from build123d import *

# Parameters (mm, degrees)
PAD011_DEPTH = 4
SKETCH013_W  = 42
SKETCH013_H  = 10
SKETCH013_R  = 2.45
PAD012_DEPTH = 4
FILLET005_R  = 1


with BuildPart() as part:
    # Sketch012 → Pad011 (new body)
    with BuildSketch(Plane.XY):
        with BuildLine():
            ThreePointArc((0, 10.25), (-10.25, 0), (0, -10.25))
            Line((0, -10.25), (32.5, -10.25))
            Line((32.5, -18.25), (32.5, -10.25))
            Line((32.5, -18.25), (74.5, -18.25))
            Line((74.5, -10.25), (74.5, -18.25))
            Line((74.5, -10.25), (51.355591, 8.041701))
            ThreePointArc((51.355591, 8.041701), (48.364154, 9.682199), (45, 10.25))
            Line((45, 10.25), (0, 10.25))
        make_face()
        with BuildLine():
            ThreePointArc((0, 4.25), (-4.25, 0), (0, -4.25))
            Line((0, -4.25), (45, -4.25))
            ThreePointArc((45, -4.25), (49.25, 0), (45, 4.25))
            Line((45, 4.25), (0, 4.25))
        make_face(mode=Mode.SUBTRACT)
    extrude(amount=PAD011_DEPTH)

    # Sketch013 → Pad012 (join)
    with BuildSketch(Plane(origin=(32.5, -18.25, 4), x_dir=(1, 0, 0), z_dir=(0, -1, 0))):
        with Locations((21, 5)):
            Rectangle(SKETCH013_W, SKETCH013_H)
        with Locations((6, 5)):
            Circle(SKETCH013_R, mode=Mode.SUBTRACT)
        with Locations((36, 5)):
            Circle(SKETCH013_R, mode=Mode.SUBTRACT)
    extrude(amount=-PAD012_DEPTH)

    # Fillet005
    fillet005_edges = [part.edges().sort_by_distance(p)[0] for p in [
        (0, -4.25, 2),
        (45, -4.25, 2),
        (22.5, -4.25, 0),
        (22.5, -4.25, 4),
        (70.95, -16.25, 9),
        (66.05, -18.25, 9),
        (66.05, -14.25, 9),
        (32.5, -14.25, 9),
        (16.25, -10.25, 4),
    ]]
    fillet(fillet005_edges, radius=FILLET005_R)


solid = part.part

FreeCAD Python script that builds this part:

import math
import FreeCAD as App
import Part
import Sketcher

V = App.Vector


def edges_at(feature, points):
    """Names of the edges that pass closest to the given points."""
    edges = feature.Shape.Edges
    near = lambda p: min(range(len(edges)), key=lambda i: edges[i].distToShape(Part.Vertex(*p))[0])
    return sorted({f"Edge{near(p) + 1}" for p in points})


def add_polygon(sketch, points):
    """Adds a closed chain of lines whose ends are joined by coincident constraints."""
    first, n = sketch.GeometryCount, len(points)
    for a, b in zip(points, points[1:] + points[:1]):
        sketch.addGeometry(Part.LineSegment(App.Vector(*a, 0), App.Vector(*b, 0)), False)
    for i in range(n):
        sketch.addConstraint(Sketcher.Constraint("Coincident", first + i, 2, first + (i + 1) % n, 1))

doc = App.newDocument("Part")
body = doc.addObject("PartDesign::Body", "Body")

sketch1 = body.newObject("Sketcher::SketchObject", "Sketch")
sketch1.AttachmentSupport = (doc.getObject("XY_Plane"), [""])
sketch1.MapMode = "FlatFace"
sketch1.addGeometry([
    Part.ArcOfCircle(Part.Circle(V(0, 0, 0), V(0, 0, 1), 10.2), math.radians(90), math.radians(270)),
    Part.LineSegment(V(0, -10.2, 0), V(32.5, -10.2, 0)),
    Part.LineSegment(V(32.5, -10.2, 0), V(32.5, -18.2, 0)),
    Part.LineSegment(V(32.5, -18.2, 0), V(74.5, -18.2, 0)),
    Part.LineSegment(V(74.5, -18.2, 0), V(74.5, -10.2, 0)),
    Part.LineSegment(V(74.5, -10.2, 0), V(51.4, 8, 0)),
    Part.ArcOfCircle(Part.Circle(V(45, 0, 0), V(0, 0, 1), 10.2), math.radians(52), math.radians(90)),
    Part.LineSegment(V(45, 10.2, 0), V(0, 10.2, 0)),
    Part.ArcOfCircle(Part.Circle(V(0, 0, 0), V(0, 0, 1), 4.2), math.radians(90), math.radians(270)),
    Part.LineSegment(V(0, 4.2, 0), V(45, 4.2, 0)),
    Part.ArcOfCircle(Part.Circle(V(45, 0, 0), V(0, 0, 1), 4.2), math.radians(-90), math.radians(90)),
    Part.LineSegment(V(45, -4.2, 0), V(0, -4.2, 0)),
], False)
sketch1.addConstraint([
    Sketcher.Constraint("Tangent", 0, 2, 1, 1),
    Sketcher.Constraint("Coincident", 1, 2, 2, 1),
    Sketcher.Constraint("Coincident", 2, 2, 3, 1),
    Sketcher.Constraint("Coincident", 3, 2, 4, 1),
    Sketcher.Constraint("Coincident", 4, 2, 5, 1),
    Sketcher.Constraint("Tangent", 5, 2, 6, 1),
    Sketcher.Constraint("Tangent", 6, 2, 7, 1),
    Sketcher.Constraint("Tangent", 7, 2, 0, 1),
    Sketcher.Constraint("Tangent", 8, 1, 9, 1),
    Sketcher.Constraint("Tangent", 9, 2, 10, 2),
    Sketcher.Constraint("Tangent", 10, 1, 11, 1),
    Sketcher.Constraint("Tangent", 11, 2, 8, 2),
    Sketcher.Constraint("Horizontal", 1),
    Sketcher.Constraint("Vertical", 2),
    Sketcher.Constraint("Horizontal", 3),
    Sketcher.Constraint("Vertical", 4),
    Sketcher.Constraint("Horizontal", 7),
    Sketcher.Constraint("Horizontal", 9),
    Sketcher.Constraint("Horizontal", 11),
    Sketcher.Constraint("Coincident", 0, 3, -1, 1),
    Sketcher.Constraint("Coincident", 8, 3, -1, 1),
    Sketcher.Constraint("Horizontal", 1, 2, 4, 2),
    Sketcher.Constraint("Vertical", 10, 3, 6, 2),
    Sketcher.Constraint("DistanceX", 3, 1, 3, 2, 42.0),
    Sketcher.Constraint("DistanceX", 7, 2, 7, 1, 45.0),
    Sketcher.Constraint("DistanceY", 2, 2, 2, 1, 8.0),
    Sketcher.Constraint("Radius", 0, 10.25),
    Sketcher.Constraint("Radius", 8, 4.25),
    Sketcher.Constraint("DistanceX", 1, 1, 1, 2, 32.5),
    Sketcher.Constraint("Distance", 5, 29.5),
])
pad1 = body.newObject("PartDesign::Pad", "Pad")
pad1.Profile = sketch1
pad1.Length = 4

sketch2 = body.newObject("Sketcher::SketchObject", "Sketch001")
sketch2.AttachmentSupport = (doc.getObject("XZ_Plane"), [""])
sketch2.MapMode = "FlatFace"
sketch2.AttachmentOffset = App.Placement(V(0, 0, 18.25), App.Rotation())
add_polygon(sketch2, [(32.5, 14), (32.5, 4), (74.5, 4), (74.5, 14)])
sketch2.addGeometry(Part.Circle(V(38.5, 9, 0), V(0, 0, 1), 2.5), False)
sketch2.addGeometry(Part.Circle(V(68.5, 9, 0), V(0, 0, 1), 2.5), False)
sketch2.addConstraint([
    Sketcher.Constraint("Vertical", 0),
    Sketcher.Constraint("Horizontal", 1),
    Sketcher.Constraint("Vertical", 2),
    Sketcher.Constraint("Horizontal", 3),
    Sketcher.Constraint("Equal", 4, 5),
    Sketcher.Constraint("Horizontal", 4, 3, 5, 3),
    Sketcher.Constraint("Diameter", 4, 4.9),
    Sketcher.Constraint("DistanceX", 1, 1, 1, 2, 42.0),
    Sketcher.Constraint("DistanceY", 0, 2, 0, 1, 10.0),
    Sketcher.Constraint("DistanceY", -1, 1, 4, 3, 9.0),
    Sketcher.Constraint("DistanceY", -1, 1, 0, 2, 4.0),
    Sketcher.Constraint("DistanceX", 4, 3, 5, 3, 30.0),
    Sketcher.Constraint("DistanceX", 0, 2, 4, 3, 6.0),
    Sketcher.Constraint("DistanceX", -1, 1, 4, 3, 38.5),
])
pad2 = body.newObject("PartDesign::Pad", "Pad001")
pad2.Profile = sketch2
pad2.Length = 4
pad2.Reversed = True
doc.recompute()

fillet = body.newObject("PartDesign::Fillet", "Fillet")
fillet.Base = (pad2, edges_at(pad2, [
    (0, -4.25, 2),
    (45, -4.25, 2),
    (22.5, -4.25, 0),
    (22.5, -4.25, 4),
    (70.95, -16.25, 9),
    (66.05, -18.25, 9),
    (66.05, -14.25, 9),
    (32.5, -14.25, 9),
    (16.25, -10.25, 4),
]))
fillet.Radius = 1

doc.recompute()
